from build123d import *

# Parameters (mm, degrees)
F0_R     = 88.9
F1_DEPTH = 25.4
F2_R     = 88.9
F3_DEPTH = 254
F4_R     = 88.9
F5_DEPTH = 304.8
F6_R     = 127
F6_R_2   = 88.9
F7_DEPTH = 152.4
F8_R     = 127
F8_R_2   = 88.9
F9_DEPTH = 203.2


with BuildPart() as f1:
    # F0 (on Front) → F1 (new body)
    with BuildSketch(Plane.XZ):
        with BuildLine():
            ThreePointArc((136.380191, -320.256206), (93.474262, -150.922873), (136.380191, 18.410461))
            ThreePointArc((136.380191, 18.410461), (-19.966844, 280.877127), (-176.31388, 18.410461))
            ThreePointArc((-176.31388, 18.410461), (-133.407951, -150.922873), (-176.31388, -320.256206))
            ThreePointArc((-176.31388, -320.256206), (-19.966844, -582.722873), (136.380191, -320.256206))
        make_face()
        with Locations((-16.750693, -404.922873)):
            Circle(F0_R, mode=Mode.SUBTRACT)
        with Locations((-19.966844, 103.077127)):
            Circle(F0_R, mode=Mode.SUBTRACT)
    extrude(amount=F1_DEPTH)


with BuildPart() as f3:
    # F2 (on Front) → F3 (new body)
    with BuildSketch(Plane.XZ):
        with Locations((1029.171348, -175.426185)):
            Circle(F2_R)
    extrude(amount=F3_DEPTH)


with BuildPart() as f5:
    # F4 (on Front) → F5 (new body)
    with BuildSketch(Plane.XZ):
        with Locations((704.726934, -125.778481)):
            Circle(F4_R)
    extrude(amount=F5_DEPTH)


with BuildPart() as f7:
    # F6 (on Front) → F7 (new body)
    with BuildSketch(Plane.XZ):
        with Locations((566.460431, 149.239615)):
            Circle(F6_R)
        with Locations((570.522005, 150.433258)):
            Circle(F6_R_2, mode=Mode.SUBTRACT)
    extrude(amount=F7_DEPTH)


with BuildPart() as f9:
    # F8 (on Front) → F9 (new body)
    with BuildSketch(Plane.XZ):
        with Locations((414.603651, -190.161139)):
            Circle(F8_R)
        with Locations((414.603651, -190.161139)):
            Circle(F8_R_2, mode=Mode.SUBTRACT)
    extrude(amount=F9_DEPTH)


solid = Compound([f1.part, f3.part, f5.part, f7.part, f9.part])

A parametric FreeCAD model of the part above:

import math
import FreeCAD as App
import Part
import Sketcher
from FreeCAD import Vector
Q = App.Units.Quantity

doc = App.newDocument("Part")
body = doc.addObject("PartDesign::Body", "Body")

sketch1 = body.newObject("Sketcher::SketchObject", "Sketch")
sketch1.AttachmentSupport = (doc.getObject("XZ_Plane"), [""])
sketch1.MapMode = "FlatFace"
sketch1.addGeometry([
    Part.ArcOfCircle(Part.Circle(Vector(449, -151, 0), Vector(0, 0, 1), 356), math.radians(152), math.radians(208)),
    Part.ArcOfCircle(Part.Circle(Vector(-20, 103, 0), Vector(0, 0, 1), 178), math.radians(-28), math.radians(208)),
    Part.ArcOfCircle(Part.Circle(Vector(-489, -151, 0), Vector(0, 0, 1), 356), math.radians(-28), math.radians(28)),
    Part.ArcOfCircle(Part.Circle(Vector(-20, -405, 0), Vector(0, 0, 1), 178), math.radians(152), math.radians(388)),
    Part.Circle(Vector(-17, -405, 0), Vector(0, 0, 1), 89),
    Part.Circle(Vector(-20, 103, 0), Vector(0, 0, 1), 89),
], False)
sketch1.addConstraint([
    Sketcher.Constraint("Tangent", 0, 1, 1, 1),
    Sketcher.Constraint("Tangent", 1, 2, 2, 2),
    Sketcher.Constraint("Tangent", 2, 1, 3, 1),
    Sketcher.Constraint("Tangent", 3, 2, 0, 2),
    Sketcher.Constraint("Coincident", 5, 3, 1, 3),
    Sketcher.Constraint("Equal", 0, 2),
    Sketcher.Constraint("Equal", 1, 3),
    Sketcher.Constraint("Equal", 4, 5),
    Sketcher.Constraint("Horizontal", 0, 3, 2, 3),
    Sketcher.Constraint("Horizontal", 3, 3, 4, 3),
    Sketcher.Constraint("Diameter", 4, Q("7 in")),
    Sketcher.Constraint("Radius", 0, Q("13.9999999 in")),
    Sketcher.Constraint("Radius", 1, Q("7 in")),
    Sketcher.Constraint("DistanceY", 0, 3, 1, 3, Q("10 in")),
    Sketcher.Constraint("DistanceX", -1, 1, 0, 3, Q("449.074261 mm")),
    Sketcher.Constraint("DistanceY", -1, 1, 1, 2, Q("18.410461 mm")),
    Sketcher.Constraint("DistanceX", 3, 3, 4, 3, Q("3.216152 mm")),
])
pad1 = body.newObject("PartDesign::Pad", "Pad")
pad1.Profile = sketch1
pad1.Length = Q("1 in")
body2 = doc.addObject("PartDesign::Body", "Body001")

sketch2 = body2.newObject("Sketcher::SketchObject", "Sketch001")
sketch2.AttachmentSupport = (doc.getObject("XZ_Plane001"), [""])
sketch2.MapMode = "FlatFace"
sketch2.addGeometry(Part.Circle(Vector(1029, -175, 0), Vector(0, 0, 1), 89), False)
sketch2.addConstraint([
    Sketcher.Constraint("Diameter", 0, Q("7 in")),
    Sketcher.Constraint("DistanceX", -1, 1, 0, 3, Q("1029.171348 mm")),
    Sketcher.Constraint("DistanceY", 0, 3, -1, 1, Q("175.426185 mm")),
])
pad2 = body2.newObject("PartDesign::Pad", "Pad001")
pad2.Profile = sketch2
pad2.Length = Q("10 in")
body3 = doc.addObject("PartDesign::Body", "Body002")

sketch3 = body3.newObject("Sketcher::SketchObject", "Sketch002")
sketch3.AttachmentSupport = (doc.getObject("XZ_Plane002"), [""])
sketch3.MapMode = "FlatFace"
sketch3.addGeometry(Part.Circle(Vector(705, -126, 0), Vector(0, 0, 1), 89), False)
sketch3.addConstraint([
    Sketcher.Constraint("Diameter", 0, Q("7 in")),
    Sketcher.Constraint("DistanceY", 0, 3, -1, 1, Q("125.778481 mm")),
    Sketcher.Constraint("DistanceX", -1, 1, 0, 3, Q("704.726934 mm")),
])
pad3 = body3.newObject("PartDesign::Pad", "Pad002")
pad3.Profile = sketch3
pad3.Length = Q("12 in")
body4 = doc.addObject("PartDesign::Body", "Body003")

sketch4 = body4.newObject("Sketcher::SketchObject", "Sketch003")
sketch4.AttachmentSupport = (doc.getObject("XZ_Plane003"), [""])
sketch4.MapMode = "FlatFace"
sketch4.addGeometry([
    Part.Circle(Vector(566, 149, 0), Vector(0, 0, 1), 127),
    Part.Circle(Vector(571, 150, 0), Vector(0, 0, 1), 89),
], False)
sketch4.addConstraint([
    Sketcher.Constraint("Diameter", 0, Q("10 in")),
    Sketcher.Constraint("Diameter", 1, Q("7 in")),
    Sketcher.Constraint("DistanceX", -1, 1, 0, 3, Q("566.460431 mm")),
    Sketcher.Constraint("DistanceY", -1, 1, 1, 3, Q("150.433258 mm")),
    Sketcher.Constraint("DistanceY", -1, 1, 0, 3, Q("149.239615 mm")),
    Sketcher.Constraint("DistanceX", -1, 1, 1, 3, Q("570.522005 mm")),
])
pad4 = body4.newObject("PartDesign::Pad", "Pad003")
pad4.Profile = sketch4
pad4.Length = Q("6 in")
body5 = doc.addObject("PartDesign::Body", "Body004")

sketch5 = body5.newObject("Sketcher::SketchObject", "Sketch004")
sketch5.AttachmentSupport = (doc.getObject("XZ_Plane004"), [""])
sketch5.MapMode = "FlatFace"
sketch5.addGeometry([
    Part.Circle(Vector(415, -190, 0), Vector(0, 0, 1), 127),
    Part.Circle(Vector(415, -190, 0), Vector(0, 0, 1), 89),
], False)
sketch5.addConstraint([
    Sketcher.Constraint("Coincident", 1, 3, 0, 3),
    Sketcher.Constraint("Diameter", 0, Q("10 in")),
    Sketcher.Constraint("Diameter", 1, Q("7 in")),
    Sketcher.Constraint("DistanceX", -1, 1, 0, 3, Q("414.603651 mm")),
    Sketcher.Constraint("DistanceY", 0, 3, -1, 1, Q("190.161139 mm")),
])
pad5 = body5.newObject("PartDesign::Pad", "Pad004")
pad5.Profile = sketch5
pad5.Length = Q("8 in")

doc.recompute()
